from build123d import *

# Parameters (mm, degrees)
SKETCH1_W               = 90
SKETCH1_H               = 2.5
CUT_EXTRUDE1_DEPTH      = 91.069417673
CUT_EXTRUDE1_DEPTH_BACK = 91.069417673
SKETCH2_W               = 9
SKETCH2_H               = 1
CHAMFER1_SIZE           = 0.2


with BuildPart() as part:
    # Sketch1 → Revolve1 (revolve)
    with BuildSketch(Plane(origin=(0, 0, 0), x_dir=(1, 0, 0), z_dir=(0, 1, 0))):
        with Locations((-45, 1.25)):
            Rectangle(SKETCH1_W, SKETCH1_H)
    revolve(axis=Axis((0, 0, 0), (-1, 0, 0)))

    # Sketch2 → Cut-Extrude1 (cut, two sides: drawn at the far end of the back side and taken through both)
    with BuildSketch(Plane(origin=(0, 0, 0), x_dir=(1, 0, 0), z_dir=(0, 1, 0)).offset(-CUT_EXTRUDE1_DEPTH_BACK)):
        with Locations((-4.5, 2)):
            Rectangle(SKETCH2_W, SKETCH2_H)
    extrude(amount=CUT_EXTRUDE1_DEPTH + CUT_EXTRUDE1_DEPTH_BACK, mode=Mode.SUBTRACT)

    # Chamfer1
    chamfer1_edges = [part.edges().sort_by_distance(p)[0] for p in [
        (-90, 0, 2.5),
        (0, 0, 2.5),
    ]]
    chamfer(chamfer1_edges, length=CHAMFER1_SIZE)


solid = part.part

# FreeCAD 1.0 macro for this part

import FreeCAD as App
import Part
import Sketcher
from FreeCAD import Vector


def edges_at(feature, points):
    """Names of the edges that pass closest to the given points."""
    edges = feature.Shape.Edges
    near = lambda p: min(range(len(edges)), key=lambda i: edges[i].distToShape(Part.Vertex(*p))[0])
    return sorted({f"Edge{near(p) + 1}" for p in points})

doc = App.newDocument("Part")
params = doc.addObject("Spreadsheet::Sheet", "Params")
for row, (alias, value) in enumerate([
    ("sketch1_width", "90 mm"),
    ("sketch1_height", "2.5 mm"),
    ("revolution_angle", "360 deg"),
    ("sketch2_width", "9 mm"),
    ("sketch2_height", "1 mm"),
    ("chamfer_size", "0.2 mm"),
], start=1):
    params.set(f"A{row}", alias)
    params.set(f"B{row}", "=" + value)
    params.setAlias(f"B{row}", alias)

body = doc.addObject("PartDesign::Body", "Body")

sketch1 = body.newObject("Sketcher::SketchObject", "Sketch")
sketch1.AttachmentSupport = (doc.getObject("XZ_Plane"), [""])
sketch1.MapMode = "FlatFace"
sketch1.addGeometry([
    Part.LineSegment(Vector(-90, -2.5, 0), Vector(-90, 0, 0)),
    Part.LineSegment(Vector(-90, 0, 0), Vector(0, 0, 0)),
    Part.LineSegment(Vector(0, 0, 0), Vector(0, -2.5, 0)),
    Part.LineSegment(Vector(0, -2.5, 0), Vector(-90, -2.5, 0)),
], False)
sketch1.addConstraint([
    Sketcher.Constraint("Coincident", 0, 2, 1, 1),
    Sketcher.Constraint("Coincident", 1, 2, 2, 1),
    Sketcher.Constraint("Coincident", 2, 2, 3, 1),
    Sketcher.Constraint("Coincident", 3, 2, 0, 1),
    Sketcher.Constraint("Vertical", 0),
    Sketcher.Constraint("Horizontal", 1),
    Sketcher.Constraint("Vertical", 2),
    Sketcher.Constraint("Horizontal", 3),
    Sketcher.Constraint("Coincident", 1, 2, -1, 1),
    Sketcher.Constraint("DistanceX", 1, 1, 1, 2, 90.0),
    Sketcher.Constraint("DistanceY", 0, 1, 0, 2, 2.5),
])
sketch1.setExpression("Constraints[9]", "Params.sketch1_width")
sketch1.setExpression("Constraints[10]", "Params.sketch1_height")
revolution = body.newObject("PartDesign::Revolution", "Revolution")
revolution.Profile = sketch1
revolution.ReferenceAxis = (sketch1, ["H_Axis"])
revolution.setExpression("Angle", "Params.revolution_angle")

sketch2 = body.newObject("Sketcher::SketchObject", "Sketch001")
sketch2.AttachmentSupport = (doc.getObject("XZ_Plane"), [""])
sketch2.MapMode = "FlatFace"
sketch2.addGeometry([
    Part.LineSegment(Vector(-9, -2.5, 0), Vector(-9, -1.5, 0)),
    Part.LineSegment(Vector(-9, -1.5, 0), Vector(0, -1.5, 0)),
    Part.LineSegment(Vector(0, -1.5, 0), Vector(0, -2.5, 0)),
    Part.LineSegment(Vector(0, -2.5, 0), Vector(-9, -2.5, 0)),
], False)
sketch2.addConstraint([
    Sketcher.Constraint("Coincident", 0, 2, 1, 1),
    Sketcher.Constraint("Coincident", 1, 2, 2, 1),
    Sketcher.Constraint("Coincident", 2, 2, 3, 1),
    Sketcher.Constraint("Coincident", 3, 2, 0, 1),
    Sketcher.Constraint("Vertical", 0),
    Sketcher.Constraint("Horizontal", 1),
    Sketcher.Constraint("Vertical", 2),
    Sketcher.Constraint("Horizontal", 3),
    Sketcher.Constraint("PointOnObject", 1, 2, -2),
    Sketcher.Constraint("DistanceX", 1, 1, 1, 2, 9.0),
    Sketcher.Constraint("DistanceY", 0, 1, 0, 2, 1.0),
    Sketcher.Constraint("DistanceY", 0, 2, -1, 1, 1.5),
])
sketch2.setExpression("Constraints[9]", "Params.sketch2_width")
sketch2.setExpression("Constraints[10]", "Params.sketch2_height")
pocket1 = body.newObject("PartDesign::Pocket", "Pocket")
pocket1.Profile = sketch2
pocket1.Type = "ThroughAll"
pocket1.Midplane = True
doc.recompute()

chamfer = body.newObject("PartDesign::Chamfer", "Chamfer")
chamfer.Base = (pocket1, edges_at(pocket1, [(-90, 0, 2.5), (0, 0, 2.5)]))
chamfer.setExpression("Size", "Params.chamfer_size")

doc.recompute()
